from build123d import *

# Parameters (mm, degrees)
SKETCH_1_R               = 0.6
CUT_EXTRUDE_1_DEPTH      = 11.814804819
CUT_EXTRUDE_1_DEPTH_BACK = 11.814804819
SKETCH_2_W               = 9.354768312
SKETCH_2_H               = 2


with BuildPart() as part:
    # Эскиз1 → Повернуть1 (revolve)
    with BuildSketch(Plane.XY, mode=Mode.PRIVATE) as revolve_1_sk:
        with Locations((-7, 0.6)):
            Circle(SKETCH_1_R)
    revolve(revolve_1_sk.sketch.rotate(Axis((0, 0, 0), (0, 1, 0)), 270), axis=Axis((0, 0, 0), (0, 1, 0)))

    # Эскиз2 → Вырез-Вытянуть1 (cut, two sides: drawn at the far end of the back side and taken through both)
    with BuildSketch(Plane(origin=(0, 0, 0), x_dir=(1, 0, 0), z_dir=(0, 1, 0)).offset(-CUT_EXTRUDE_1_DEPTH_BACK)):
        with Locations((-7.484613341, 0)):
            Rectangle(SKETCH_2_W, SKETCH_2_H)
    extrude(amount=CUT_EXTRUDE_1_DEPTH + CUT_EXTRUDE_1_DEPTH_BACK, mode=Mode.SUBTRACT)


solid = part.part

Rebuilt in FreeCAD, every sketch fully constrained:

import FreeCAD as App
import Part
import Sketcher


def add_polygon(sketch, points):
    """Adds a closed chain of lines whose ends are joined by coincident constraints."""
    first, n = sketch.GeometryCount, len(points)
    for a, b in zip(points, points[1:] + points[:1]):
        sketch.addGeometry(Part.LineSegment(App.Vector(*a, 0), App.Vector(*b, 0)), False)
    for i in range(n):
        sketch.addConstraint(Sketcher.Constraint("Coincident", first + i, 2, first + (i + 1) % n, 1))

doc = App.newDocument("Part")
body = doc.addObject("PartDesign::Body", "Body")

# Sketch on XY plane
sketch1 = body.newObject("Sketcher::SketchObject", "Sketch")
sketch1.AttachmentSupport = (doc.getObject("XY_Plane"), [""])
sketch1.MapMode = "FlatFace"
sketch1.addGeometry(Part.Circle(App.Vector(-7, 0.6, 0), App.Vector(0, 0, 1), 0.6), False)
sketch1.addConstraint(Sketcher.Constraint("Diameter", 0, 1.2))
sketch1.addConstraint(Sketcher.Constraint("DistanceX", 0, 3, -1, 1, 7.0))
sketch1.addConstraint(Sketcher.Constraint("DistanceY", -1, 1, 0, 3, 0.6))
revolution = body.newObject("PartDesign::Revolution", "Revolution")
revolution.Profile = sketch1
revolution.ReferenceAxis = (sketch1, ["V_Axis"])
revolution.Angle = 360

# Sketch on XZ plane
sketch2 = body.newObject("Sketcher::SketchObject", "Sketch001")
sketch2.AttachmentSupport = (doc.getObject("XZ_Plane"), [""])
sketch2.MapMode = "FlatFace"
add_polygon(sketch2, [(-12.2, -1), (-12.2, 1), (-2.8, 1), (-2.8, -1)])  # lines 0-3
sketch2.addConstraint(Sketcher.Constraint("Vertical", 0))
sketch2.addConstraint(Sketcher.Constraint("Horizontal", 1))
sketch2.addConstraint(Sketcher.Constraint("Vertical", 2))
sketch2.addConstraint(Sketcher.Constraint("Horizontal", 3))
sketch2.addConstraint(Sketcher.Constraint("DistanceY", 0, 1, 0, 2, 2.0))
sketch2.addConstraint(Sketcher.Constraint("DistanceY", -1, 1, 0, 2, 1.0))
sketch2.addConstraint(Sketcher.Constraint("DistanceX", 1, 1, 1, 2, 9.354768))
sketch2.addConstraint(Sketcher.Constraint("DistanceX", 1, 2, -1, 1, 2.807229))
pocket1 = body.newObject("PartDesign::Pocket", "Pocket")
pocket1.Profile = sketch2
pocket1.Type = "ThroughAll"
pocket1.Midplane = True

doc.recompute()
